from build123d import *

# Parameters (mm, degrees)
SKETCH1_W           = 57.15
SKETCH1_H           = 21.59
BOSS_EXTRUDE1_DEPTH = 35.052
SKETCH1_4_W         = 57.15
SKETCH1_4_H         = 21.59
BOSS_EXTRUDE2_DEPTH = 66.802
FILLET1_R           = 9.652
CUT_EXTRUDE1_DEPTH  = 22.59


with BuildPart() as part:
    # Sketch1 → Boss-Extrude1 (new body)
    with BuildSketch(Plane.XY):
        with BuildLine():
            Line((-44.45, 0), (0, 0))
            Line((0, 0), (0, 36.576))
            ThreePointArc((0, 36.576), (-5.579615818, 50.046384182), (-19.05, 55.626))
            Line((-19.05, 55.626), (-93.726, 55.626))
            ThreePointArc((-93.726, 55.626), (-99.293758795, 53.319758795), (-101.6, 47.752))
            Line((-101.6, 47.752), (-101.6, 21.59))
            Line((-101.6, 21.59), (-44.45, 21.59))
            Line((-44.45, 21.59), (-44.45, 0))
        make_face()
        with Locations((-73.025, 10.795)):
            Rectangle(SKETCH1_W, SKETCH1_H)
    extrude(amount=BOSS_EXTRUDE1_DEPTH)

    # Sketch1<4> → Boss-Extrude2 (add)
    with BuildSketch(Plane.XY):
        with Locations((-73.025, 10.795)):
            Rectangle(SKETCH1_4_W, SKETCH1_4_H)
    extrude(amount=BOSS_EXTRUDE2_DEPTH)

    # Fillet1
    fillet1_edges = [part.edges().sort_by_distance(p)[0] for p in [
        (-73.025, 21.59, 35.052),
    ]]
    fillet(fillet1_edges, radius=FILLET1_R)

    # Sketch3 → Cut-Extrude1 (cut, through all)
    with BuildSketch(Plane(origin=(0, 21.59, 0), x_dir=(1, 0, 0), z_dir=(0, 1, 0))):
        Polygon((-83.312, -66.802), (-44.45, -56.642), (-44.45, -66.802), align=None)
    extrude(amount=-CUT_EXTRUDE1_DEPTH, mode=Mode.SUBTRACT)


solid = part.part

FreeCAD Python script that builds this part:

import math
import FreeCAD as App
import Part
import Sketcher
Q = App.Units.Quantity


def edges_at(feature, points):
    """Names of the edges that pass closest to the given points."""
    edges = feature.Shape.Edges
    near = lambda p: min(range(len(edges)), key=lambda i: edges[i].distToShape(Part.Vertex(*p))[0])
    return sorted({f"Edge{near(p) + 1}" for p in points})


def add_polygon(sketch, points):
    """Adds a closed chain of lines whose ends are joined by coincident constraints."""
    first, n = sketch.GeometryCount, len(points)
    for a, b in zip(points, points[1:] + points[:1]):
        sketch.addGeometry(Part.LineSegment(App.Vector(*a, 0), App.Vector(*b, 0)), False)
    for i in range(n):
        sketch.addConstraint(Sketcher.Constraint("Coincident", first + i, 2, first + (i + 1) % n, 1))

doc = App.newDocument("Part")
body = doc.addObject("PartDesign::Body", "Body")

# Sketch on XY plane
sketch1 = doc.addObject("Sketcher::SketchObject", "Sketch")
body.addObject(sketch1)
sketch1.AttachmentSupport = (doc.XY_Plane, [""])
sketch1.MapMode = "FlatFace"
sketch1.addGeometry(Part.LineSegment(App.Vector(0, 0, 0), App.Vector(0, 36.576, 0)), False)
sketch1.addGeometry(Part.ArcOfCircle(Part.Circle(App.Vector(-19.05, 36.576, 0), App.Vector(0, 0, 1), 19.05), math.radians(0), math.radians(90)), False)
sketch1.addGeometry(Part.LineSegment(App.Vector(-19.05, 55.626, 0), App.Vector(-93.726, 55.626, 0)), False)
sketch1.addGeometry(Part.ArcOfCircle(Part.Circle(App.Vector(-93.726, 47.752, 0), App.Vector(0, 0, 1), 7.874), math.radians(90), math.radians(180)), False)
sketch1.addGeometry(Part.LineSegment(App.Vector(-101.6, 47.752, 0), App.Vector(-101.6, 0, 0)), False)
sketch1.addGeometry(Part.LineSegment(App.Vector(-101.6, 0, 0), App.Vector(0, 0, 0)), False)
sketch1.addConstraint(Sketcher.Constraint("Tangent", 0, 2, 1, 1))
sketch1.addConstraint(Sketcher.Constraint("Tangent", 1, 2, 2, 1))
sketch1.addConstraint(Sketcher.Constraint("Tangent", 2, 2, 3, 1))
sketch1.addConstraint(Sketcher.Constraint("Tangent", 3, 2, 4, 1))
sketch1.addConstraint(Sketcher.Constraint("Coincident", 4, 2, 5, 1))
sketch1.addConstraint(Sketcher.Constraint("Coincident", 5, 2, 0, 1))
sketch1.addConstraint(Sketcher.Constraint("Vertical", 0))
sketch1.addConstraint(Sketcher.Constraint("Horizontal", 2))
sketch1.addConstraint(Sketcher.Constraint("Vertical", 4))
sketch1.addConstraint(Sketcher.Constraint("Horizontal", 5))
sketch1.addConstraint(Sketcher.Constraint("Coincident", 5, 2, -1, 1))
sketch1.addConstraint(Sketcher.Constraint("DistanceX", 5, 1, 5, 2, Q("4 in")))
sketch1.addConstraint(Sketcher.Constraint("Radius", 1, Q("0.75 in")))
sketch1.addConstraint(Sketcher.Constraint("Radius", 3, Q("0.31 in")))
sketch1.addConstraint(Sketcher.Constraint("DistanceY", 0, 1, 0, 2, Q("1.44 in")))
pad1 = doc.addObject("PartDesign::Pad", "Pad")
body.addObject(pad1)
pad1.Profile = sketch1
pad1.Length = Q("1.38 in")

# Sketch on XY plane
sketch2 = doc.addObject("Sketcher::SketchObject", "Sketch001")
body.addObject(sketch2)
sketch2.AttachmentSupport = (doc.XY_Plane, [""])
sketch2.MapMode = "FlatFace"
add_polygon(sketch2, [(-101.6, 21.59), (-101.6, 0), (-44.45, 0), (-44.45, 21.59)])  # lines 0-3
sketch2.addConstraint(Sketcher.Constraint("Vertical", 0))
sketch2.addConstraint(Sketcher.Constraint("Horizontal", 1))
sketch2.addConstraint(Sketcher.Constraint("Vertical", 2))
sketch2.addConstraint(Sketcher.Constraint("Horizontal", 3))
sketch2.addConstraint(Sketcher.Constraint("PointOnObject", 0, 2, -1))
sketch2.addConstraint(Sketcher.Constraint("DistanceX", 0, 2, -1, 1, Q("4 in")))
sketch2.addConstraint(Sketcher.Constraint("DistanceX", 1, 1, 1, 2, Q("2.25 in")))
sketch2.addConstraint(Sketcher.Constraint("DistanceY", 0, 2, 0, 1, Q("0.85 in")))
pad2 = doc.addObject("PartDesign::Pad", "Pad001")
body.addObject(pad2)
pad2.Profile = sketch2
pad2.Length = Q("2.63 in")
doc.recompute()

fillet = doc.addObject("PartDesign::Fillet", "Fillet")
body.addObject(fillet)
fillet.Base = (pad2, edges_at(pad2, [(-73.025, 21.59, 35.052)]))
fillet.Radius = Q("0.38 in")

# Sketch on XZ plane
sketch3 = doc.addObject("Sketcher::SketchObject", "Sketch002")
body.addObject(sketch3)
sketch3.AttachmentSupport = (doc.XZ_Plane, [""])
sketch3.MapMode = "FlatFace"
sketch3.AttachmentOffset = App.Placement(App.Vector(0, 0, -0.85 * 25.4), App.Rotation())
add_polygon(sketch3, [(-44.45, 56.642), (-83.312, 66.802), (-44.45, 66.802)])  # lines 0-2
sketch3.addConstraint(Sketcher.Constraint("Horizontal", 1))
sketch3.addConstraint(Sketcher.Constraint("Vertical", 2))
sketch3.addConstraint(Sketcher.Constraint("DistanceY", 2, 2, 2, 1, Q("0.4 in")))
sketch3.addConstraint(Sketcher.Constraint("DistanceX", 1, 1, 1, 2, Q("1.53 in")))
sketch3.addConstraint(Sketcher.Constraint("DistanceX", 0, 2, -1, 1, Q("3.28 in")))
sketch3.addConstraint(Sketcher.Constraint("DistanceY", -1, 1, 0, 2, Q("2.63 in")))
pocket1 = doc.addObject("PartDesign::Pocket", "Pocket")
body.addObject(pocket1)
pocket1.Profile = sketch3
pocket1.Type = "ThroughAll"
pocket1.Reversed = True

doc.recompute()
